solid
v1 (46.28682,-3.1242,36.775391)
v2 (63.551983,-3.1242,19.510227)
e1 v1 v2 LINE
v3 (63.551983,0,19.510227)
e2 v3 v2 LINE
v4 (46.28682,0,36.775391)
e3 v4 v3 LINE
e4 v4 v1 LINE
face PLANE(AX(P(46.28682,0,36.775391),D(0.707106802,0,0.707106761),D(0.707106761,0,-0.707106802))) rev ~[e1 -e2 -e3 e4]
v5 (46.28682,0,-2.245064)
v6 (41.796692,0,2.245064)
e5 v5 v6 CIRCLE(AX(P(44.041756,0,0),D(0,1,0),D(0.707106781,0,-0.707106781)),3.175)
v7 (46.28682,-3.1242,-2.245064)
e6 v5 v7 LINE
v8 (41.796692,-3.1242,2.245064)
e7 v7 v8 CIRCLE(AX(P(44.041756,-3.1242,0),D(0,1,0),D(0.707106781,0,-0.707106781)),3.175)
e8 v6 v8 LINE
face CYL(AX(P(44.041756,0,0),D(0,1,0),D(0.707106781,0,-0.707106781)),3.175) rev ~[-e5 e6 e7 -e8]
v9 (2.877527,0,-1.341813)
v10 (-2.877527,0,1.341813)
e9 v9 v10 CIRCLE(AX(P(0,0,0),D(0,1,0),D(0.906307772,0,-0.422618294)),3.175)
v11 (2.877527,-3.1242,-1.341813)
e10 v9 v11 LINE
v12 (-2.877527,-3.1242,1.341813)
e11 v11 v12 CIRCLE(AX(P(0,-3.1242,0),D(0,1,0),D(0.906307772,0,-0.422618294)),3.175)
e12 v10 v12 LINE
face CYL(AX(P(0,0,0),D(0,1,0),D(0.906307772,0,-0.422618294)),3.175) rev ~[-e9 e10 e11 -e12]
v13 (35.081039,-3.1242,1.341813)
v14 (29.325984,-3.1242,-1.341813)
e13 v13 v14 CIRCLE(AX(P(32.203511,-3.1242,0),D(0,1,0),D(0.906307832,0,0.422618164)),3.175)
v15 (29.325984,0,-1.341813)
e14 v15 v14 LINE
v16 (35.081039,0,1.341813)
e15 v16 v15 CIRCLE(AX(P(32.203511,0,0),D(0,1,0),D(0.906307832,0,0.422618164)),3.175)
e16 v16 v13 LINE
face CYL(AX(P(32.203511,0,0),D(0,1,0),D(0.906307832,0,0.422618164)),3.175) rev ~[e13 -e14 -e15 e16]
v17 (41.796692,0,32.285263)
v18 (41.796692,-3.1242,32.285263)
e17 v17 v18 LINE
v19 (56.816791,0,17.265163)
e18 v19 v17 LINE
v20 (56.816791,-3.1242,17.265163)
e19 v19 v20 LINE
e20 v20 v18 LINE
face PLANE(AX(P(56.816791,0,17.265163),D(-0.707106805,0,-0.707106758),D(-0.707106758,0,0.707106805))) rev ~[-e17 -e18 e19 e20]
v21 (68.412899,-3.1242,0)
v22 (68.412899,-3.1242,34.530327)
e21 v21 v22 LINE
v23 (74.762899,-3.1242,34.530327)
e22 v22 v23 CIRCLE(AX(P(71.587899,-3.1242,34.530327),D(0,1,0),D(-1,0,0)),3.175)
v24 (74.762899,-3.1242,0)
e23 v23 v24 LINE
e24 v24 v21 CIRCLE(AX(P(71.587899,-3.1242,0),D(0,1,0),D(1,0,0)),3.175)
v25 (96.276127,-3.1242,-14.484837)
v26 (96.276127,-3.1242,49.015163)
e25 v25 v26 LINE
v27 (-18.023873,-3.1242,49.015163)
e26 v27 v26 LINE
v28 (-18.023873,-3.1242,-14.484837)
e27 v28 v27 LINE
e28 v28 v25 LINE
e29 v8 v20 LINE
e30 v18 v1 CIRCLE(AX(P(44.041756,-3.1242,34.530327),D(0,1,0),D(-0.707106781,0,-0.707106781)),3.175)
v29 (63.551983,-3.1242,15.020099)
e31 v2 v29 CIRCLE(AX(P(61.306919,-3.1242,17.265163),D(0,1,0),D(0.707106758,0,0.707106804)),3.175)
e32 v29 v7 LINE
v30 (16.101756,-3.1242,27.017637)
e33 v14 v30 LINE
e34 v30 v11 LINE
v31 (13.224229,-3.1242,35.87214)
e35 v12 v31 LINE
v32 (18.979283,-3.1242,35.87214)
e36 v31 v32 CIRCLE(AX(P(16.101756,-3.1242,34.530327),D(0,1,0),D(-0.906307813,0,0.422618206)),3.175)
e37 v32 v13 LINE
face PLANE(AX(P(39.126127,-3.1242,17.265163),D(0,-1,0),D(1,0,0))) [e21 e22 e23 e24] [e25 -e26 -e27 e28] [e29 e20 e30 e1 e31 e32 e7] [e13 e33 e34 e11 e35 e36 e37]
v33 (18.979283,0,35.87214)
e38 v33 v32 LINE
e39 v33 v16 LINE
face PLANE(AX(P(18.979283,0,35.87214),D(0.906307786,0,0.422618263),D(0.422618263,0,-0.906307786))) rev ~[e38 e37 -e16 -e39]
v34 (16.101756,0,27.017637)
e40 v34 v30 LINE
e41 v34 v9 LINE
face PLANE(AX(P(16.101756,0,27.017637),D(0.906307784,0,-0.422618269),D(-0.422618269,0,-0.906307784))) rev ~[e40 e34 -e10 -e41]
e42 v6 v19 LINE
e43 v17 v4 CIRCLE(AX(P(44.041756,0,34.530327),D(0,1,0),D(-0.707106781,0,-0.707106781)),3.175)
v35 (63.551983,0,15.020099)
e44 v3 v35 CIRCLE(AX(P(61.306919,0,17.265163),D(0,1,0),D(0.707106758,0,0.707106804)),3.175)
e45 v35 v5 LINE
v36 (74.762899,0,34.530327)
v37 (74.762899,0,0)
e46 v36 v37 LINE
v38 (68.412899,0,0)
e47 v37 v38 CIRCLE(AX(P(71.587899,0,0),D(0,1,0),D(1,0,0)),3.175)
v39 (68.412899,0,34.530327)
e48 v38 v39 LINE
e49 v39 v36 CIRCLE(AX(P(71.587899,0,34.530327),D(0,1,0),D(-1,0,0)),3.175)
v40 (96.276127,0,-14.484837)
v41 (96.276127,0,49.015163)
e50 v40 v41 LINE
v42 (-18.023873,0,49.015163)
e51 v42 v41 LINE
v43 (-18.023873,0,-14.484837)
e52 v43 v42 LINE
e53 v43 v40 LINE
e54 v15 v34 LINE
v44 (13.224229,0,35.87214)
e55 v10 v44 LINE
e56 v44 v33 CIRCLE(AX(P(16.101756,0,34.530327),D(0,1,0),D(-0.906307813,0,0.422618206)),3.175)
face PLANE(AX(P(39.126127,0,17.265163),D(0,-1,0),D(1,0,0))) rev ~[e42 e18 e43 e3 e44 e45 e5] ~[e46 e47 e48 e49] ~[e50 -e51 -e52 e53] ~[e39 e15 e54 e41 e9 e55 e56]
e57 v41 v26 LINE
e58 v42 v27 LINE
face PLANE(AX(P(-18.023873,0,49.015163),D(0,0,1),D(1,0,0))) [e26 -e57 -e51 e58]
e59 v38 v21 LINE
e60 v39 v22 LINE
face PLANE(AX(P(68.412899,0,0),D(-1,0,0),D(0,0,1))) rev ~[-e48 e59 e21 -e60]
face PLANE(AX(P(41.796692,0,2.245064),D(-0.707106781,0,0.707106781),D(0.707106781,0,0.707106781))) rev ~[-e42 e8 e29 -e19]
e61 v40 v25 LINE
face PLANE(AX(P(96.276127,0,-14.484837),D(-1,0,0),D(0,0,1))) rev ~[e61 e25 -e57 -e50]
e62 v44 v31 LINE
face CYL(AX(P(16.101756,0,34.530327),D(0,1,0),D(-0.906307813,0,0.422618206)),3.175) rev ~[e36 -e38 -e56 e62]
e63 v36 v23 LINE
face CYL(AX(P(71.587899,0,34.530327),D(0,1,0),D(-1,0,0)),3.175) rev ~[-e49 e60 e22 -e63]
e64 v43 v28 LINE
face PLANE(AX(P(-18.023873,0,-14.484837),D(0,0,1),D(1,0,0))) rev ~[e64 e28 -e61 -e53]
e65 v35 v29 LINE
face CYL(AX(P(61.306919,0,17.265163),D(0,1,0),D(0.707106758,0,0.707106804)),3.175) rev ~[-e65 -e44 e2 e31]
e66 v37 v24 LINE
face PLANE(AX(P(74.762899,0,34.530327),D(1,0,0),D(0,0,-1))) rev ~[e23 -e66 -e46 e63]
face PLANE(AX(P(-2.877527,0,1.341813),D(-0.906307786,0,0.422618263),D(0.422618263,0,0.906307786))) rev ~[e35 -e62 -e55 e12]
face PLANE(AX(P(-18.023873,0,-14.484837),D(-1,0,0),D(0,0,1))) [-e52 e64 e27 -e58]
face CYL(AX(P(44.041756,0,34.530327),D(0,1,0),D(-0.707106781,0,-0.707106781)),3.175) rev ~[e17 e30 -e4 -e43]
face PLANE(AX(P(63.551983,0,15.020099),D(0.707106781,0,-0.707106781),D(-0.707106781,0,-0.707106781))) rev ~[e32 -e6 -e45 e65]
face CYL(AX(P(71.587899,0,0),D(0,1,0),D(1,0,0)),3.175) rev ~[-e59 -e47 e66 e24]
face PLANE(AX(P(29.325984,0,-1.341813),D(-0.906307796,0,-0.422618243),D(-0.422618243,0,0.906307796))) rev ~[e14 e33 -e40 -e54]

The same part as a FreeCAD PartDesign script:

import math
import FreeCAD as App
import Part
import Sketcher

V = App.Vector
Q = App.Units.Quantity


def add_polygon(sketch, points):
    """Adds a closed chain of lines whose ends are joined by coincident constraints."""
    first, n = sketch.GeometryCount, len(points)
    for a, b in zip(points, points[1:] + points[:1]):
        sketch.addGeometry(Part.LineSegment(App.Vector(*a, 0), App.Vector(*b, 0)), False)
    for i in range(n):
        sketch.addConstraint(Sketcher.Constraint("Coincident", first + i, 2, first + (i + 1) % n, 1))

doc = App.newDocument("Part")
body = doc.addObject("PartDesign::Body", "Body")

# Sketch on XZ plane
sketch1 = body.newObject("Sketcher::SketchObject", "Sketch")
sketch1.AttachmentSupport = (doc.getObject("XZ_Plane"), [""])
sketch1.MapMode = "FlatFace"
add_polygon(sketch1, [(-18, 49), (-18, -14.5), (96.3, -14.5), (96.3, 49)])  # lines 0-3
sketch1.addGeometry(Part.LineSegment(V(16.1, 27, 0), V(2.9, -1.3, 0)), False)  # 4
sketch1.addGeometry(Part.ArcOfCircle(Part.Circle(V(0, 0, 0), V(0, 0, 1), 3.2), math.radians(155), math.radians(335)), False)  # 5
sketch1.addGeometry(Part.LineSegment(V(-2.9, 1.3, 0), V(13.2, 35.9, 0)), False)  # 6
sketch1.addGeometry(Part.ArcOfCircle(Part.Circle(V(16.1, 34.5, 0), V(0, 0, 1), 3.2), math.radians(25), math.radians(155)), False)  # 7
sketch1.addGeometry(Part.LineSegment(V(19, 35.9, 0), V(35.1, 1.3, 0)), False)  # 8
sketch1.addGeometry(Part.ArcOfCircle(Part.Circle(V(32.2, 0, 0), V(0, 0, 1), 3.2), math.radians(-155), math.radians(25)), False)  # 9
sketch1.addGeometry(Part.LineSegment(V(29.3, -1.3, 0), V(16.1, 27, 0)), False)  # 10
sketch1.addGeometry(Part.LineSegment(V(63.6, 15, 0), V(46.3, -2.2, 0)), False)  # 11
sketch1.addGeometry(Part.ArcOfCircle(Part.Circle(V(44, 0, 0), V(0, 0, 1), 3.2), math.radians(135), math.radians(315)), False)  # 12
sketch1.addGeometry(Part.LineSegment(V(41.8, 2.2, 0), V(56.8, 17.3, 0)), False)  # 13
sketch1.addGeometry(Part.LineSegment(V(56.8, 17.3, 0), V(41.8, 32.3, 0)), False)  # 14
sketch1.addGeometry(Part.ArcOfCircle(Part.Circle(V(44, 34.5, 0), V(0, 0, 1), 3.2), math.radians(45), math.radians(225)), False)  # 15
sketch1.addGeometry(Part.LineSegment(V(46.3, 36.8, 0), V(63.6, 19.5, 0)), False)  # 16
sketch1.addGeometry(Part.ArcOfCircle(Part.Circle(V(61.3, 17.3, 0), V(0, 0, 1), 3.2), math.radians(-45), math.radians(45)), False)  # 17
sketch1.addGeometry(Part.LineSegment(V(74.8, 34.5, 0), V(74.8, 0, 0)), False)  # 18
sketch1.addGeometry(Part.ArcOfCircle(Part.Circle(V(71.6, 0, 0), V(0, 0, 1), 3.2), math.radians(180), math.radians(360)), False)  # 19
sketch1.addGeometry(Part.LineSegment(V(68.4, 0, 0), V(68.4, 34.5, 0)), False)  # 20
sketch1.addGeometry(Part.ArcOfCircle(Part.Circle(V(71.6, 34.5, 0), V(0, 0, 1), 3.2), math.radians(0), math.radians(180)), False)  # 21
sketch1.addConstraint([
    Sketcher.Constraint("Tangent", 4, 2, 5, 2),
    Sketcher.Constraint("Tangent", 5, 1, 6, 1),
    Sketcher.Constraint("Tangent", 6, 2, 7, 2),
    Sketcher.Constraint("Tangent", 7, 1, 8, 1),
    Sketcher.Constraint("Tangent", 8, 2, 9, 2),
    Sketcher.Constraint("Tangent", 9, 1, 10, 1),
    Sketcher.Constraint("Coincident", 10, 2, 4, 1),
    Sketcher.Constraint("Tangent", 11, 2, 12, 2),
    Sketcher.Constraint("Tangent", 12, 1, 13, 1),
    Sketcher.Constraint("Coincident", 13, 2, 14, 1),
    Sketcher.Constraint("Tangent", 14, 2, 15, 2),
    Sketcher.Constraint("Tangent", 15, 1, 16, 1),
    Sketcher.Constraint("Tangent", 16, 2, 17, 2),
    Sketcher.Constraint("Tangent", 17, 1, 11, 1),
    Sketcher.Constraint("Tangent", 18, 2, 19, 2),
    Sketcher.Constraint("Tangent", 19, 1, 20, 1),
    Sketcher.Constraint("Tangent", 20, 2, 21, 2),
    Sketcher.Constraint("Tangent", 21, 1, 18, 1),
    Sketcher.Constraint("Vertical", 0),
    Sketcher.Constraint("Horizontal", 1),
    Sketcher.Constraint("Vertical", 2),
    Sketcher.Constraint("Horizontal", 3),
    Sketcher.Constraint("Vertical", 18),
    Sketcher.Constraint("Vertical", 20),
    Sketcher.Constraint("Coincident", 5, 3, -1, 1),
    Sketcher.Constraint("Equal", 5, 7),
    Sketcher.Constraint("Equal", 7, 9),
    Sketcher.Constraint("Equal", 9, 12),
    Sketcher.Constraint("Equal", 12, 15),
    Sketcher.Constraint("Equal", 15, 17),
    Sketcher.Constraint("Equal", 17, 19),
    Sketcher.Constraint("PointOnObject", 9, 3, -1),
    Sketcher.Constraint("PointOnObject", 12, 3, -1),
    Sketcher.Constraint("PointOnObject", 19, 3, -1),
    Sketcher.Constraint("Parallel", 4, 6),
    Sketcher.Constraint("Parallel", 8, 10),
    Sketcher.Constraint("Parallel", 11, 13),
    Sketcher.Constraint("Perpendicular", 13, 14),
    Sketcher.Constraint("Parallel", 14, 16),
    Sketcher.Constraint("Horizontal", 7, 3, 15, 3),
    Sketcher.Constraint("Horizontal", 15, 3, 21, 3),
    Sketcher.Constraint("Horizontal", 6, 2, 7, 1),
    Sketcher.Constraint("Horizontal", 17, 3, 13, 2),
    Sketcher.Constraint("Vertical", 12, 3, 15, 3),
    Sketcher.Constraint("DistanceX", 1, 1, 1, 2, Q("4.5 in")),
    Sketcher.Constraint("DistanceY", 0, 2, 0, 1, Q("2.5 in")),
    Sketcher.Constraint("Angle", 4, Q("-115 deg")),
    Sketcher.Constraint("Radius", 5, Q("0.125 in")),
    Sketcher.Constraint("Distance", 6, Q("1.5 in")),
    Sketcher.Constraint("DistanceX", 7, 3, 12, 3, Q("1.1 in")),
    Sketcher.Constraint("DistanceY", 1, 2, 17, 3, Q("1.25 in")),
    Sketcher.Constraint("DistanceX", -1, 1, 19, 3, Q("71.587899 mm")),
    Sketcher.Constraint("DistanceX", 0, 2, 4, 2, Q("20.9014 mm")),
])
pad1 = body.newObject("PartDesign::Pad", "Pad")
pad1.Profile = sketch1
pad1.Length = Q("0.123 in")

doc.recompute()
